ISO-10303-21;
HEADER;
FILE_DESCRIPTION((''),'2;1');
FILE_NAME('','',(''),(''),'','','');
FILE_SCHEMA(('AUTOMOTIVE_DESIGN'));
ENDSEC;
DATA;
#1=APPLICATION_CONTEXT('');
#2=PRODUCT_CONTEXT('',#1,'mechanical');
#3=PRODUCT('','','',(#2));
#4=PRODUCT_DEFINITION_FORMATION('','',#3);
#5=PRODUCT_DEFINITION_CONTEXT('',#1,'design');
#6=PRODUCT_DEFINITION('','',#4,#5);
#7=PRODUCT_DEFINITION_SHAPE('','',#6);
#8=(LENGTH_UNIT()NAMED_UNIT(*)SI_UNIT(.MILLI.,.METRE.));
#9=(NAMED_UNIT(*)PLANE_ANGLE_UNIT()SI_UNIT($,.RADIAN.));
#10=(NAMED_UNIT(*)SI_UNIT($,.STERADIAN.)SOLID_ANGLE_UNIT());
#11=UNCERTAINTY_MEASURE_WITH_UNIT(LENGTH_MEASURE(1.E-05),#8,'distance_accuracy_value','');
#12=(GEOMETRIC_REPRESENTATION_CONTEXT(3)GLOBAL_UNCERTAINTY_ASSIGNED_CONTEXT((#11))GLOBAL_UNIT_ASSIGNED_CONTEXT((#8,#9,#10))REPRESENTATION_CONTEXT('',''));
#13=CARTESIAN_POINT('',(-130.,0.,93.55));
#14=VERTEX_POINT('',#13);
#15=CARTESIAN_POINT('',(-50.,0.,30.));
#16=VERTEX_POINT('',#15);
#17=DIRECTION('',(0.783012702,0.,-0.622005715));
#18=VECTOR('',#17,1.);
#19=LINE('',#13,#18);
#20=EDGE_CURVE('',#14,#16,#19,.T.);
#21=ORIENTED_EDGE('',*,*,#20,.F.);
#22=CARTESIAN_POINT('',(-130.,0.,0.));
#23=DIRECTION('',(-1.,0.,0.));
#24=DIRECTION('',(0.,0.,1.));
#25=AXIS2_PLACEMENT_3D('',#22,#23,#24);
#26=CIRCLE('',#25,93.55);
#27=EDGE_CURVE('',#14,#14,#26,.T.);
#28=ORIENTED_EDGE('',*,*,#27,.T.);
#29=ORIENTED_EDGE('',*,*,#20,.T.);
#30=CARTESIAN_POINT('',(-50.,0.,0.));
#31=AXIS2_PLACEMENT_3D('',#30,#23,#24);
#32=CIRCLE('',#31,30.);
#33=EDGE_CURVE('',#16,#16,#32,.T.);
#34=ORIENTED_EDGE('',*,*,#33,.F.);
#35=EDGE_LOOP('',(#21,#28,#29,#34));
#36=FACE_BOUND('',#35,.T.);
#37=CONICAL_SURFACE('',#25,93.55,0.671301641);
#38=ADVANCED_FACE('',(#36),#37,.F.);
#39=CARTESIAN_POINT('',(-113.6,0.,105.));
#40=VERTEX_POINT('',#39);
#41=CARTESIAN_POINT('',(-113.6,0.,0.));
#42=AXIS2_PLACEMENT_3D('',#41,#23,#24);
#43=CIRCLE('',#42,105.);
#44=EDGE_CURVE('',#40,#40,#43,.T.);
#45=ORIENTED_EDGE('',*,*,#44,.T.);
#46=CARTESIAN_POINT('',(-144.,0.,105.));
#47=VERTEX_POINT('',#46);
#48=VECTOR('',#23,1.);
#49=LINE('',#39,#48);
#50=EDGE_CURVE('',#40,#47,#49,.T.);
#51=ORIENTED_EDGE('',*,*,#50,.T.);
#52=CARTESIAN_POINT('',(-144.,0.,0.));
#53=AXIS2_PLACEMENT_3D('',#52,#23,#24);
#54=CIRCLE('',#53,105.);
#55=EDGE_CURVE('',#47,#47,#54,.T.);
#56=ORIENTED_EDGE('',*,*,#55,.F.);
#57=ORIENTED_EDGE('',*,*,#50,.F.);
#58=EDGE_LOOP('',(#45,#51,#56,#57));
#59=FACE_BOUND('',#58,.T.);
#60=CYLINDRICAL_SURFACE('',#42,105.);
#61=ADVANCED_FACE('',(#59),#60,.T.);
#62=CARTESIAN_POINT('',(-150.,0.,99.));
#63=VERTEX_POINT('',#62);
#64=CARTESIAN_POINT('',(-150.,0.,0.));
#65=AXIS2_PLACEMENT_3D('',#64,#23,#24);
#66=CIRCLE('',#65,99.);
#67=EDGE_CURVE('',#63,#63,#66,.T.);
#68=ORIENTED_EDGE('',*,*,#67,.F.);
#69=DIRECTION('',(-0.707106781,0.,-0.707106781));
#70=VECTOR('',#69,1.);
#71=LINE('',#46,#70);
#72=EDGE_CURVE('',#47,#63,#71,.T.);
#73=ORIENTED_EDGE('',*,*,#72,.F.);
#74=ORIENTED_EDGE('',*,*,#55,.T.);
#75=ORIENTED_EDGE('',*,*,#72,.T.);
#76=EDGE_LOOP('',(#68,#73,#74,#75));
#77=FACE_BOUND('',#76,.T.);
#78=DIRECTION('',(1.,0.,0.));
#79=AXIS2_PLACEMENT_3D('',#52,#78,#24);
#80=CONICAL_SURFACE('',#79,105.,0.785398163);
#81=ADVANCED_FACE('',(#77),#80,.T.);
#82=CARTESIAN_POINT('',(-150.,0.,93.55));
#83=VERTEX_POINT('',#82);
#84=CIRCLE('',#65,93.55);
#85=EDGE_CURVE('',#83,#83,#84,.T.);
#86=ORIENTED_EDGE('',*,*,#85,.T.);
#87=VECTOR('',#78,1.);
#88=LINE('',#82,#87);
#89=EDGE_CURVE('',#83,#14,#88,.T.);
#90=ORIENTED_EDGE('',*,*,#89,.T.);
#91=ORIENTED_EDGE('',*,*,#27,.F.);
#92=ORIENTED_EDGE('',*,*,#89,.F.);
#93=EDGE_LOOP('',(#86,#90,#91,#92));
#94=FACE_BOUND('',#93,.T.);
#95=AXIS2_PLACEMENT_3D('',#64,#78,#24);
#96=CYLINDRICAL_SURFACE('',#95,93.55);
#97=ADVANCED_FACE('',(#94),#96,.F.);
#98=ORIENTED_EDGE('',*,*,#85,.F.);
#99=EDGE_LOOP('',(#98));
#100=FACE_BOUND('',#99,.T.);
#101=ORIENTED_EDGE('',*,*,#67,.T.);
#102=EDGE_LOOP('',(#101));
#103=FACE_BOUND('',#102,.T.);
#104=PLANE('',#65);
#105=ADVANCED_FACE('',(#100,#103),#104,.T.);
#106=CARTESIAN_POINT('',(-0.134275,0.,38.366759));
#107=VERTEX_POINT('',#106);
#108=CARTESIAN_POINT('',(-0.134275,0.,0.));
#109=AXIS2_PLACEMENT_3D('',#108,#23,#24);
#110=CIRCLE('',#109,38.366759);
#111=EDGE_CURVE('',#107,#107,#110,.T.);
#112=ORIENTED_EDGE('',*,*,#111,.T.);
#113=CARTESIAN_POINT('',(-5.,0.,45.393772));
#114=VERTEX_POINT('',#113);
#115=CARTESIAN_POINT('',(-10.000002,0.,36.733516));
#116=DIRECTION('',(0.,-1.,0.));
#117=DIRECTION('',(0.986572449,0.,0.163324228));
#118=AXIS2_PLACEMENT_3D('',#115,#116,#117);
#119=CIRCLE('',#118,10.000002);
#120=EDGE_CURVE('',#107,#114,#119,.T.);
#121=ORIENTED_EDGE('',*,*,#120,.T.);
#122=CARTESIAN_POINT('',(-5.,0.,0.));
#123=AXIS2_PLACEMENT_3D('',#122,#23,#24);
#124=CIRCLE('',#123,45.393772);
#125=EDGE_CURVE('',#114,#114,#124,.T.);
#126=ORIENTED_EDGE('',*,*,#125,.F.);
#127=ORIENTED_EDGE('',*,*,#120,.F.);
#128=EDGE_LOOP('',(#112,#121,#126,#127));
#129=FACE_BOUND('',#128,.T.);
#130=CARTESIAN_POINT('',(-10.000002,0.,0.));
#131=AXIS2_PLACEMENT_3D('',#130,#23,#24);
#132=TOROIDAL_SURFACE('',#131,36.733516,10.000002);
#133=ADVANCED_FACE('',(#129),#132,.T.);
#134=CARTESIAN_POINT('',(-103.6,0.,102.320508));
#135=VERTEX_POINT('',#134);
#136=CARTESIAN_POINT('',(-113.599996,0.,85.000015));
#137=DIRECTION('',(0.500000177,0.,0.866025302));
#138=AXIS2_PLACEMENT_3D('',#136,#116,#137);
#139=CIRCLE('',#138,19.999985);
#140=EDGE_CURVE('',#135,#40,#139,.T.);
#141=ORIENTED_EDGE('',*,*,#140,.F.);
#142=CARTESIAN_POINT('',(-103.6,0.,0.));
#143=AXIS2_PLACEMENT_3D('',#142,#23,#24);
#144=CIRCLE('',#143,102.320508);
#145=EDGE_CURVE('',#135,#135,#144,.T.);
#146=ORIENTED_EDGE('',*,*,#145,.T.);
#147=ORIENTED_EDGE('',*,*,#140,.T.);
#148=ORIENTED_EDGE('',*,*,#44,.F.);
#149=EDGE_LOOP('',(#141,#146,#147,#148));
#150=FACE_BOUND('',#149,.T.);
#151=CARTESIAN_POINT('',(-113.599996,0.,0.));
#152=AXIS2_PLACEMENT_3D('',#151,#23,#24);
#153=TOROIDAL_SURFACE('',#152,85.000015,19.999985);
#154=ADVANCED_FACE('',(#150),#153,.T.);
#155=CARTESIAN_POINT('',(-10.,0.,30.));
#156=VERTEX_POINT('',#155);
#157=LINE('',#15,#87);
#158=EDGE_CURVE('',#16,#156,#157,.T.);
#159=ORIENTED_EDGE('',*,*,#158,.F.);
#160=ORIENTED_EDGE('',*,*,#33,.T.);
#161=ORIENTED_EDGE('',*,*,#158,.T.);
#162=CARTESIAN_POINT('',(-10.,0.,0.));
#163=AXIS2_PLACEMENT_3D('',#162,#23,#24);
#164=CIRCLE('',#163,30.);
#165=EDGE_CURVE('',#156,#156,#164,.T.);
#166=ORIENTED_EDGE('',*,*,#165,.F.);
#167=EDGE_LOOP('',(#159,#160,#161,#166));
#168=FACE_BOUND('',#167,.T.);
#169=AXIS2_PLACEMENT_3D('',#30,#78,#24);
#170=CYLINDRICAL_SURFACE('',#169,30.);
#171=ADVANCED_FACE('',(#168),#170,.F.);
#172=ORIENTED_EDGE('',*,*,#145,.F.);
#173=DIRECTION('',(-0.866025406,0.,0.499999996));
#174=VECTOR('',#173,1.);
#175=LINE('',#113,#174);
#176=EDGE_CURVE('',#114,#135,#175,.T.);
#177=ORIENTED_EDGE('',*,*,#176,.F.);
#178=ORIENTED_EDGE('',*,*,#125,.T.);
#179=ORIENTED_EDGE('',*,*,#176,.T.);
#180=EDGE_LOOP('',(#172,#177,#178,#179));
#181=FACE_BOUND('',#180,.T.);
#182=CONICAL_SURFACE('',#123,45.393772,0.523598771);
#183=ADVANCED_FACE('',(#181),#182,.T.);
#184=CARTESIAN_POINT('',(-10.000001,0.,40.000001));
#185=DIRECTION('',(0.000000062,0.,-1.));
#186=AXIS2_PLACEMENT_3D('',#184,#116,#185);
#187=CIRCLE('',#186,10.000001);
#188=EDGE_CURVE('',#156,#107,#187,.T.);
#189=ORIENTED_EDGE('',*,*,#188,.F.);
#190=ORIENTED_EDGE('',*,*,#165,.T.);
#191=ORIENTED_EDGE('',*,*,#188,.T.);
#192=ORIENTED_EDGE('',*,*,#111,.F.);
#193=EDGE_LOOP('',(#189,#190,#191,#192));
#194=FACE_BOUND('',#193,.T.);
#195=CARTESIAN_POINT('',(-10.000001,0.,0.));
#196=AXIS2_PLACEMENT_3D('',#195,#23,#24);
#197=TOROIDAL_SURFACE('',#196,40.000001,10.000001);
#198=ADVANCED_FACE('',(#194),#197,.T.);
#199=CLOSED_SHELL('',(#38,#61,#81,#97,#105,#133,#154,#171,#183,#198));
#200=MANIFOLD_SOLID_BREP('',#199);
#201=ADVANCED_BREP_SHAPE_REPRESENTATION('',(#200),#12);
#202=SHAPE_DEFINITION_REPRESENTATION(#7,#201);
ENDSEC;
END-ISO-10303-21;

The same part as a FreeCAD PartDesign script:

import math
import FreeCAD as App
import Part
import Sketcher
from FreeCAD import Vector
Q = App.Units.Quantity


def edges_at(feature, points):
    """Names of the edges that pass closest to the given points."""
    edges = feature.Shape.Edges
    near = lambda p: min(range(len(edges)), key=lambda i: edges[i].distToShape(Part.Vertex(*p))[0])
    return sorted({f"Edge{near(p) + 1}" for p in points})

doc = App.newDocument("Part")
body = doc.addObject("PartDesign::Body", "Body")

# Sketch on XZ plane
sketch1 = doc.addObject("Sketcher::SketchObject", "Sketch")
body.addObject(sketch1)
sketch1.AttachmentSupport = (doc.XZ_Plane, [""])
sketch1.MapMode = "FlatFace"
sketch1.addGeometry([
    Part.ArcOfCircle(Part.Circle(Vector(-113.599996, 85.000015, 0), Vector(0, 0, 1), 19.999985), math.radians(59.999988), math.radians(90.000011)),  # 0
    Part.LineSegment(Vector(-113.6, 105, 0), Vector(-150, 105, 0)),  # 1
    Part.LineSegment(Vector(-150, 105, 0), Vector(-150, 93.55, 0)),  # 2
    Part.LineSegment(Vector(-150, 93.55, 0), Vector(-130, 93.55, 0)),  # 3
    Part.LineSegment(Vector(-130, 93.55, 0), Vector(-50, 30, 0)),  # 4
    Part.LineSegment(Vector(-50, 30, 0), Vector(-10, 30, 0)),  # 5
    Part.ArcOfCircle(Part.Circle(Vector(-10.000001, 40.000001, 0), Vector(0, 0, 1), 10.000001), math.radians(-89.999996), math.radians(-9.399897)),  # 6
    Part.ArcOfCircle(Part.Circle(Vector(-10.000002, 36.733516, 0), Vector(0, 0, 1), 10.000002), math.radians(9.399899), math.radians(59.999996)),  # 7
    Part.LineSegment(Vector(-5, 45.393772, 0), Vector(-103.6, 102.320508, 0)),  # 8
], False)
sketch1.addConstraint([
    Sketcher.Constraint("Tangent", 0, 2, 1, 1),
    Sketcher.Constraint("Coincident", 1, 2, 2, 1),
    Sketcher.Constraint("Coincident", 2, 2, 3, 1),
    Sketcher.Constraint("Coincident", 3, 2, 4, 1),
    Sketcher.Constraint("Coincident", 4, 2, 5, 1),
    Sketcher.Constraint("Tangent", 5, 2, 6, 1),
    Sketcher.Constraint("Coincident", 6, 2, 7, 1),
    Sketcher.Constraint("Tangent", 7, 2, 8, 1),
    Sketcher.Constraint("Tangent", 8, 2, 0, 1),
    Sketcher.Constraint("Horizontal", 1),
    Sketcher.Constraint("Vertical", 2),
    Sketcher.Constraint("Horizontal", 3),
    Sketcher.Constraint("Horizontal", 5),
    Sketcher.Constraint("Equal", 6, 7),
    Sketcher.Constraint("Vertical", 6, 3, 7, 3),
    Sketcher.Constraint("Radius", 6, 10.000001),
    Sketcher.Constraint("DistanceX", 3, 1, 3, 2, 20.0),
    Sketcher.Constraint("DistanceX", 5, 1, 5, 2, 40.0),
    Sketcher.Constraint("Angle", 8, Q("150 deg")),
    Sketcher.Constraint("DistanceX", 1, 2, 1, 1, 36.4),
    Sketcher.Constraint("DistanceX", 6, 3, -1, 1, 10.000001),
    Sketcher.Constraint("DistanceY", -1, 1, 6, 3, 40.000001),
    Sketcher.Constraint("DistanceY", -1, 1, 0, 2, 105.0),
    Sketcher.Constraint("DistanceX", 1, 2, -1, 1, 150.0),
    Sketcher.Constraint("DistanceX", 0, 2, 8, 2, 10.0),
    Sketcher.Constraint("DistanceY", 2, 2, 2, 1, 11.45),
])
revolution = doc.addObject("PartDesign::Revolution", "Revolution")
body.addObject(revolution)
revolution.Profile = sketch1
revolution.ReferenceAxis = (sketch1, ["H_Axis"])
revolution.Angle = 360
doc.recompute()

chamfer = doc.addObject("PartDesign::Chamfer", "Chamfer")
body.addObject(chamfer)
chamfer.Base = (revolution, edges_at(revolution, [(-150, 0, -105)]))
chamfer.Size = 6

doc.recompute()
